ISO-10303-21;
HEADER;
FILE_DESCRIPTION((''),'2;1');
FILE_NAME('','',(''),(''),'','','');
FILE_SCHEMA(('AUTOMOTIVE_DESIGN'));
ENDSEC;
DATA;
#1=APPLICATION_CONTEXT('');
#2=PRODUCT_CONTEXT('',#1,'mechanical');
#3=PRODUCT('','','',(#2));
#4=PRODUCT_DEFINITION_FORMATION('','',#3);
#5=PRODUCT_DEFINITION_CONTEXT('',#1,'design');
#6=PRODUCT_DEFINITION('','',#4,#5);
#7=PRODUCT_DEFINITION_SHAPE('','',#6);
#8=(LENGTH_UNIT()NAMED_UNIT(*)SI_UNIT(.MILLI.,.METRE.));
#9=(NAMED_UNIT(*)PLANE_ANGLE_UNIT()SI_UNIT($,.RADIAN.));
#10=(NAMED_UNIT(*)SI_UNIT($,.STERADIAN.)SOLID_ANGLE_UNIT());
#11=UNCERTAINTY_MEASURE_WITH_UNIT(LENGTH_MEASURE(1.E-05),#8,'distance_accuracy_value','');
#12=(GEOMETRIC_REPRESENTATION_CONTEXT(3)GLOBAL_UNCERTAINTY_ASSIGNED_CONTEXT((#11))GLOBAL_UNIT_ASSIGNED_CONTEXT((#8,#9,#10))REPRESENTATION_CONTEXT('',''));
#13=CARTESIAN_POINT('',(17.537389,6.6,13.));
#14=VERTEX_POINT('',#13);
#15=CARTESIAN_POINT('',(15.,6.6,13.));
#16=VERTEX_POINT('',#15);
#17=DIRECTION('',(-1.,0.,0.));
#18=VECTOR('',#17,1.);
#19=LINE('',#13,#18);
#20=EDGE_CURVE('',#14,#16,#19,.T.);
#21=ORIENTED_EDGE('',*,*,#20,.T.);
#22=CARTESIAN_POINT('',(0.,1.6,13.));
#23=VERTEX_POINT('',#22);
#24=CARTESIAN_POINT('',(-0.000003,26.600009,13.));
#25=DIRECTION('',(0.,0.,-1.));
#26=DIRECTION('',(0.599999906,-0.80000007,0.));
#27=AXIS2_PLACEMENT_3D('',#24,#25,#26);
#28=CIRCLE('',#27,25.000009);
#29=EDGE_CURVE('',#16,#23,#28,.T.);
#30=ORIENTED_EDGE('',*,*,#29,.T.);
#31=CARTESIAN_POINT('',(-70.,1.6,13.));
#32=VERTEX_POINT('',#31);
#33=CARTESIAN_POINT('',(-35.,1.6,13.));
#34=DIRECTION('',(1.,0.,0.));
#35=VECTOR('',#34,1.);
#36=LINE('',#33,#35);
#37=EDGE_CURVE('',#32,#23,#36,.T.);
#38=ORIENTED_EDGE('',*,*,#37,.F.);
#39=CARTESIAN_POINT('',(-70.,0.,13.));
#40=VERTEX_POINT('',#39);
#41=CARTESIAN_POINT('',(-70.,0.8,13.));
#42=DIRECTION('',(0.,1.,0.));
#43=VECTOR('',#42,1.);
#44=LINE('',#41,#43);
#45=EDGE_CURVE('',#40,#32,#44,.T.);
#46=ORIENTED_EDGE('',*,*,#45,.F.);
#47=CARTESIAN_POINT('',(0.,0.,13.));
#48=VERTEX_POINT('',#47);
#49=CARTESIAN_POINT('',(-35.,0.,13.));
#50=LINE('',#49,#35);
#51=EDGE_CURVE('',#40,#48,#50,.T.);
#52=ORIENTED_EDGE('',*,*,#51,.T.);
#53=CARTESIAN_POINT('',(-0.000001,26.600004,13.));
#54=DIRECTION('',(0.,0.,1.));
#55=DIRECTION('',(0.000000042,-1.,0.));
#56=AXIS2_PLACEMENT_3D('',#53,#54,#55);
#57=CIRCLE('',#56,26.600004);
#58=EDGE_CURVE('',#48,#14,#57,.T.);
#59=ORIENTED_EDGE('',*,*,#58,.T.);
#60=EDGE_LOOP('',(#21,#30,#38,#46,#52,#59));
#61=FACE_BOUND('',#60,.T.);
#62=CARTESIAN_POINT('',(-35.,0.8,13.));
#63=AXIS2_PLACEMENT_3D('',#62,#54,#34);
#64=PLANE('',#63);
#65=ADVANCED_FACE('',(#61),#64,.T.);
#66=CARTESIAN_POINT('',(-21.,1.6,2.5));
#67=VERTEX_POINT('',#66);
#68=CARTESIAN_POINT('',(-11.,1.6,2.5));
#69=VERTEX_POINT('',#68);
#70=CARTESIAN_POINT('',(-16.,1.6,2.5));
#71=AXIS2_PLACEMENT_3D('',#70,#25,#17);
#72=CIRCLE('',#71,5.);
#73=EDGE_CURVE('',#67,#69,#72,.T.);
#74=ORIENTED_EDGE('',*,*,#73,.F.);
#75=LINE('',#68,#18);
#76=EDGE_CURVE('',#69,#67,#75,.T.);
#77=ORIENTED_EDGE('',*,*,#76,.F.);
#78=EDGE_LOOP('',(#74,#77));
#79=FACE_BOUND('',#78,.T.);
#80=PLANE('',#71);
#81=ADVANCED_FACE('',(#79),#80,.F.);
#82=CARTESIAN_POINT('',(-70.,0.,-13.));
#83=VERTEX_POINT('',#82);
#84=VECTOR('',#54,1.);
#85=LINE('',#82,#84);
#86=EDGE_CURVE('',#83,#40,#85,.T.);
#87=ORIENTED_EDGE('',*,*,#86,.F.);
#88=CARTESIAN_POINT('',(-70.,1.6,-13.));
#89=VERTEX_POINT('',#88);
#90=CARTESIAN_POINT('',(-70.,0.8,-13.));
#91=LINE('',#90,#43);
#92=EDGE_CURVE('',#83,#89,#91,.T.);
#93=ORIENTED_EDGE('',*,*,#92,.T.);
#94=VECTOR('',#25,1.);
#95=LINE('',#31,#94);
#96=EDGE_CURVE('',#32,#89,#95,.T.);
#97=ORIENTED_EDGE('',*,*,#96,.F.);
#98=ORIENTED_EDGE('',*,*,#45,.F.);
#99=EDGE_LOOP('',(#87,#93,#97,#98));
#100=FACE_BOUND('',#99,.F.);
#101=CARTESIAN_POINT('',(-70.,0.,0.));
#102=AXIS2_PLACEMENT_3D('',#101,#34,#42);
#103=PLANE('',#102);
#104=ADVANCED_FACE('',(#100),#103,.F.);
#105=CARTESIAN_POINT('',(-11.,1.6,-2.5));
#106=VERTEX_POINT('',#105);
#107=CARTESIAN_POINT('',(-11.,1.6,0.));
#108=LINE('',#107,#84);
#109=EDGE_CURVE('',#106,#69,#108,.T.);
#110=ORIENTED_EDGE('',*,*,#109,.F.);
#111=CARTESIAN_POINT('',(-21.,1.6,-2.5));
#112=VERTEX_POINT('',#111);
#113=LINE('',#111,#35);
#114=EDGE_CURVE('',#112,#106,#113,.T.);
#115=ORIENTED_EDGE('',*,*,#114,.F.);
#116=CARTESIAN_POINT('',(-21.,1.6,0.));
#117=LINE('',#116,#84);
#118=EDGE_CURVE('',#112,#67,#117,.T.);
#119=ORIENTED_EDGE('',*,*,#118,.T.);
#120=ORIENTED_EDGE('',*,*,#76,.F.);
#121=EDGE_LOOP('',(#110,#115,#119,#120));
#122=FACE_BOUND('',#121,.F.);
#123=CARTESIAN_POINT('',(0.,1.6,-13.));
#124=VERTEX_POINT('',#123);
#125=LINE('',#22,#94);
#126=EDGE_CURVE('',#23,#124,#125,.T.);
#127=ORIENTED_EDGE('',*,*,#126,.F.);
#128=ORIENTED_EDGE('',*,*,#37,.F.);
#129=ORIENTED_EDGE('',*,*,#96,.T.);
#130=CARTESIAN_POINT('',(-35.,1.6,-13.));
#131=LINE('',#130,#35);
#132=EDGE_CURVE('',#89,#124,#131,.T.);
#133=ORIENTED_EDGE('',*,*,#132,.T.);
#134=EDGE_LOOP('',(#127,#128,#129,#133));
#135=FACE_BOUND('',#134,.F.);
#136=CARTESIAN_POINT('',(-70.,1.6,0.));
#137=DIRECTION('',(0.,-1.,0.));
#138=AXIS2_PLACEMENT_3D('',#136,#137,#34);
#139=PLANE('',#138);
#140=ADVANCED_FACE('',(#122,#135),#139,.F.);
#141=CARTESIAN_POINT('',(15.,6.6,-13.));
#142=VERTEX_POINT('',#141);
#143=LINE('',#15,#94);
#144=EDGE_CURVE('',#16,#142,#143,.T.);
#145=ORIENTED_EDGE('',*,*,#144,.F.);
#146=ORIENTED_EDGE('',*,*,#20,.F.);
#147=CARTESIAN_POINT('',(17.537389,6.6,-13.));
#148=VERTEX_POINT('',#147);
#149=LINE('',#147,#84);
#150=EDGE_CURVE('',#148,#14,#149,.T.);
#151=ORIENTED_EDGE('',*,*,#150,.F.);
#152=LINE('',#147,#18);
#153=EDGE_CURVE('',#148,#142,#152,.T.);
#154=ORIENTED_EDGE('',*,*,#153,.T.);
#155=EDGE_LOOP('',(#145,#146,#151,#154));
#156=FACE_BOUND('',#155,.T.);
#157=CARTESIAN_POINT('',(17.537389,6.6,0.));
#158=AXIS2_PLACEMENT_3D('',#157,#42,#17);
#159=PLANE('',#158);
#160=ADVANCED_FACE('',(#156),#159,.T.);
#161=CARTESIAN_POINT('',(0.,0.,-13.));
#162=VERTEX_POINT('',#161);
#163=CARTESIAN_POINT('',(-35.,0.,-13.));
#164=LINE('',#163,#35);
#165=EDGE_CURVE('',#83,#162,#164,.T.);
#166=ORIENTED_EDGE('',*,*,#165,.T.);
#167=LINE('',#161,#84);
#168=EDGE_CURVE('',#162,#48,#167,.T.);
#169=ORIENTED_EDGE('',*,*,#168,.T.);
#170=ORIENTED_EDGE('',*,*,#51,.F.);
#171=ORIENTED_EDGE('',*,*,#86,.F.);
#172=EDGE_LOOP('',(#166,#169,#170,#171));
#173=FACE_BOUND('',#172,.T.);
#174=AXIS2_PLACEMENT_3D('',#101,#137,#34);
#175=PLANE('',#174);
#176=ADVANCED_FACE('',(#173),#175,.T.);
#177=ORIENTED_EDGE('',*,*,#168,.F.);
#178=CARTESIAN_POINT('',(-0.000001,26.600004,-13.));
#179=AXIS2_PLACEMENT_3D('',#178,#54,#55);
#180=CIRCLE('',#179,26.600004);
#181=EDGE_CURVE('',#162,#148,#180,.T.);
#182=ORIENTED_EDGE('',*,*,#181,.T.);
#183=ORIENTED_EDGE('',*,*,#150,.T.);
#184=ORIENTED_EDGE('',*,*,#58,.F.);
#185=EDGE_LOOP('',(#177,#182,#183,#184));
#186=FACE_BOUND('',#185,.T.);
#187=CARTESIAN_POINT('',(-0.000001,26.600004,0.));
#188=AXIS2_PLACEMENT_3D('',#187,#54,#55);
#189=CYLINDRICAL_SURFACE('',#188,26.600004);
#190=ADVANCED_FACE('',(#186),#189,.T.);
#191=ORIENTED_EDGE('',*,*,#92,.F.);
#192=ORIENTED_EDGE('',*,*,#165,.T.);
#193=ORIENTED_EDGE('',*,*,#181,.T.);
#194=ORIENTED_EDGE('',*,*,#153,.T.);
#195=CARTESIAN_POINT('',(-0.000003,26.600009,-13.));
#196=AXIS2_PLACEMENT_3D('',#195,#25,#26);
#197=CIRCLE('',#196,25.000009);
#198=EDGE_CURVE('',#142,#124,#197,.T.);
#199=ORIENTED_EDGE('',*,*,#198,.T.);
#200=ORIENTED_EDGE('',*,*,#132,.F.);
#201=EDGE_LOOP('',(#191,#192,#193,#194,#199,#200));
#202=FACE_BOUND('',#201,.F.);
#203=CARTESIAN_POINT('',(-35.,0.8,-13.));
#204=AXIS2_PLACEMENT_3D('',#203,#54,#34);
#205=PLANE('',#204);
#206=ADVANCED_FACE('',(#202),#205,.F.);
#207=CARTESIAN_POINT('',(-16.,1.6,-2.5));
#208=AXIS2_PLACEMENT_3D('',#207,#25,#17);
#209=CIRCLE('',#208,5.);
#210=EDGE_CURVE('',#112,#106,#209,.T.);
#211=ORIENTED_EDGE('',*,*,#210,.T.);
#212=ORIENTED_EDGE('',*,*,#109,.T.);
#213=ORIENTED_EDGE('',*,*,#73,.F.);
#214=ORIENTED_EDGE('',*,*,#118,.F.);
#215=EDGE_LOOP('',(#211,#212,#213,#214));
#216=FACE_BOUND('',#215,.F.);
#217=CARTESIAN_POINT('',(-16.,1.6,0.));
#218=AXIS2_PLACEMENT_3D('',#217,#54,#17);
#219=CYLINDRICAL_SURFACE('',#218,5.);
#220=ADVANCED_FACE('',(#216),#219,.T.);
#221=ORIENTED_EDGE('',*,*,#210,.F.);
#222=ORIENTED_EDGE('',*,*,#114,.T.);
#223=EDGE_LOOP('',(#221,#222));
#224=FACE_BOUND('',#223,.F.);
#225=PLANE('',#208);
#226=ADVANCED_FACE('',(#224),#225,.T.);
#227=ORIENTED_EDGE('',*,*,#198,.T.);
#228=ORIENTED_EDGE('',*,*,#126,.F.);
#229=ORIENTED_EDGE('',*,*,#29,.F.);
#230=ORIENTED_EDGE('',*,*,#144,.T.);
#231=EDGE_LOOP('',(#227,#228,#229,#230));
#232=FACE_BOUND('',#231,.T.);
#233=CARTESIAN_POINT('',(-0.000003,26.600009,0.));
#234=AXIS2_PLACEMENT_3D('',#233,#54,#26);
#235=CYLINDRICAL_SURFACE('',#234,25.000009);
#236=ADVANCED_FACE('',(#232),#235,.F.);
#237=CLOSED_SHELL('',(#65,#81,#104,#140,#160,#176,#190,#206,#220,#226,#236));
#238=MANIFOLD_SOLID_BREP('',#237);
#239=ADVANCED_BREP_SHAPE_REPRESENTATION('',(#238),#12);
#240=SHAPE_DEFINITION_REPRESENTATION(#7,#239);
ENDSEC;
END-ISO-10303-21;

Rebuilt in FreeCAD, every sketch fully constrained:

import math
import FreeCAD as App
import Part
import Sketcher
Q = App.Units.Quantity


def add_polygon(sketch, points):
    """Adds a closed chain of lines whose ends are joined by coincident constraints."""
    first, n = sketch.GeometryCount, len(points)
    for a, b in zip(points, points[1:] + points[:1]):
        sketch.addGeometry(Part.LineSegment(App.Vector(*a, 0), App.Vector(*b, 0)), False)
    for i in range(n):
        sketch.addConstraint(Sketcher.Constraint("Coincident", first + i, 2, first + (i + 1) % n, 1))

doc = App.newDocument("Part")
body = doc.addObject("PartDesign::Body", "Body")

sketch1 = doc.addObject("Sketcher::SketchObject", "Sketch")
body.addObject(sketch1)
sketch1.AttachmentSupport = (doc.XY_Plane, [""])
sketch1.MapMode = "FlatFace"
sketch1.addGeometry([
    Part.LineSegment(App.Vector(-70, 1.6, 0), App.Vector(-70, 0, 0)),
    Part.LineSegment(App.Vector(-70, 0, 0), App.Vector(0, 0, 0)),
    Part.ArcOfCircle(Part.Circle(App.Vector(-0.000001, 26.600004, 0), App.Vector(0, 0, 1), 26.600004), math.radians(-89.999998), math.radians(-48.75347)),
    Part.LineSegment(App.Vector(17.537389, 6.6, 0), App.Vector(15, 6.6, 0)),
    Part.ArcOfCircle(Part.Circle(App.Vector(-0.000003, 26.600009, 0), App.Vector(0, 0, 1), 25.000009), math.radians(-89.999993), math.radians(-53.130109)),
    Part.LineSegment(App.Vector(0, 1.6, 0), App.Vector(-70, 1.6, 0)),
], False)
sketch1.addConstraint([
    Sketcher.Constraint("Coincident", 0, 2, 1, 1),
    Sketcher.Constraint("Tangent", 1, 2, 2, 1),
    Sketcher.Constraint("Coincident", 2, 2, 3, 1),
    Sketcher.Constraint("Coincident", 3, 2, 4, 2),
    Sketcher.Constraint("Tangent", 4, 1, 5, 1),
    Sketcher.Constraint("Coincident", 5, 2, 0, 1),
    Sketcher.Constraint("Vertical", 0),
    Sketcher.Constraint("Horizontal", 1),
    Sketcher.Constraint("Horizontal", 3),
    Sketcher.Constraint("Horizontal", 5),
    Sketcher.Constraint("Coincident", 1, 2, -1, 1),
    Sketcher.Constraint("Coincident", 4, 3, 2, 3),
    Sketcher.Constraint("DistanceX", 1, 1, 1, 2, Q("70 mm")),
    Sketcher.Constraint("DistanceY", 0, 2, 0, 1, Q("1.6 mm")),
    Sketcher.Constraint("DistanceX", -1, 1, 3, 2, Q("15 mm")),
    Sketcher.Constraint("DistanceY", 4, 1, 3, 2, Q("5 mm")),
])
pad1 = doc.addObject("PartDesign::Pad", "Pad")
body.addObject(pad1)
pad1.Profile = sketch1
pad1.Type = "TwoLengths"
pad1.Length = 13
pad1.Length2 = 13

sketch2 = doc.addObject("Sketcher::SketchObject", "Sketch001")
body.addObject(sketch2)
sketch2.AttachmentSupport = (doc.XZ_Plane, [""])
sketch2.MapMode = "FlatFace"
sketch2.AttachmentOffset = App.Placement(App.Vector(0, 0, -1.6), App.Rotation())
add_polygon(sketch2, [(-16, 2.5), (-16, -2.5), (-21, -2.5), (-21, 2.5)])
sketch2.addGeometry(Part.LineSegment(App.Vector(-16, 2.5, 0), App.Vector(-16, -2.5, 0)), True)
sketch2.addConstraint([
    Sketcher.Constraint("Vertical", 0),
    Sketcher.Constraint("Horizontal", 1),
    Sketcher.Constraint("Vertical", 2),
    Sketcher.Constraint("Horizontal", 3),
    Sketcher.Constraint("Vertical", 4),
    Sketcher.Constraint("Coincident", 4, 1, 3, 2),
    Sketcher.Constraint("Horizontal", 1, 2, 4, 2),
    Sketcher.Constraint("Equal", 3, 0),
    Sketcher.Constraint("DistanceX", 1, 2, 1, 1, Q("5 mm")),
    Sketcher.Constraint("DistanceX", 0, 2, -1, 1, Q("16 mm")),
    Sketcher.Constraint("DistanceY", 0, 2, -1, 1, Q("2.5 mm")),
])
revolution = doc.addObject("PartDesign::Revolution", "Revolution")
body.addObject(revolution)
revolution.Profile = sketch2
revolution.ReferenceAxis = (sketch2, ["Axis0"])
revolution.Angle = 180

doc.recompute()
